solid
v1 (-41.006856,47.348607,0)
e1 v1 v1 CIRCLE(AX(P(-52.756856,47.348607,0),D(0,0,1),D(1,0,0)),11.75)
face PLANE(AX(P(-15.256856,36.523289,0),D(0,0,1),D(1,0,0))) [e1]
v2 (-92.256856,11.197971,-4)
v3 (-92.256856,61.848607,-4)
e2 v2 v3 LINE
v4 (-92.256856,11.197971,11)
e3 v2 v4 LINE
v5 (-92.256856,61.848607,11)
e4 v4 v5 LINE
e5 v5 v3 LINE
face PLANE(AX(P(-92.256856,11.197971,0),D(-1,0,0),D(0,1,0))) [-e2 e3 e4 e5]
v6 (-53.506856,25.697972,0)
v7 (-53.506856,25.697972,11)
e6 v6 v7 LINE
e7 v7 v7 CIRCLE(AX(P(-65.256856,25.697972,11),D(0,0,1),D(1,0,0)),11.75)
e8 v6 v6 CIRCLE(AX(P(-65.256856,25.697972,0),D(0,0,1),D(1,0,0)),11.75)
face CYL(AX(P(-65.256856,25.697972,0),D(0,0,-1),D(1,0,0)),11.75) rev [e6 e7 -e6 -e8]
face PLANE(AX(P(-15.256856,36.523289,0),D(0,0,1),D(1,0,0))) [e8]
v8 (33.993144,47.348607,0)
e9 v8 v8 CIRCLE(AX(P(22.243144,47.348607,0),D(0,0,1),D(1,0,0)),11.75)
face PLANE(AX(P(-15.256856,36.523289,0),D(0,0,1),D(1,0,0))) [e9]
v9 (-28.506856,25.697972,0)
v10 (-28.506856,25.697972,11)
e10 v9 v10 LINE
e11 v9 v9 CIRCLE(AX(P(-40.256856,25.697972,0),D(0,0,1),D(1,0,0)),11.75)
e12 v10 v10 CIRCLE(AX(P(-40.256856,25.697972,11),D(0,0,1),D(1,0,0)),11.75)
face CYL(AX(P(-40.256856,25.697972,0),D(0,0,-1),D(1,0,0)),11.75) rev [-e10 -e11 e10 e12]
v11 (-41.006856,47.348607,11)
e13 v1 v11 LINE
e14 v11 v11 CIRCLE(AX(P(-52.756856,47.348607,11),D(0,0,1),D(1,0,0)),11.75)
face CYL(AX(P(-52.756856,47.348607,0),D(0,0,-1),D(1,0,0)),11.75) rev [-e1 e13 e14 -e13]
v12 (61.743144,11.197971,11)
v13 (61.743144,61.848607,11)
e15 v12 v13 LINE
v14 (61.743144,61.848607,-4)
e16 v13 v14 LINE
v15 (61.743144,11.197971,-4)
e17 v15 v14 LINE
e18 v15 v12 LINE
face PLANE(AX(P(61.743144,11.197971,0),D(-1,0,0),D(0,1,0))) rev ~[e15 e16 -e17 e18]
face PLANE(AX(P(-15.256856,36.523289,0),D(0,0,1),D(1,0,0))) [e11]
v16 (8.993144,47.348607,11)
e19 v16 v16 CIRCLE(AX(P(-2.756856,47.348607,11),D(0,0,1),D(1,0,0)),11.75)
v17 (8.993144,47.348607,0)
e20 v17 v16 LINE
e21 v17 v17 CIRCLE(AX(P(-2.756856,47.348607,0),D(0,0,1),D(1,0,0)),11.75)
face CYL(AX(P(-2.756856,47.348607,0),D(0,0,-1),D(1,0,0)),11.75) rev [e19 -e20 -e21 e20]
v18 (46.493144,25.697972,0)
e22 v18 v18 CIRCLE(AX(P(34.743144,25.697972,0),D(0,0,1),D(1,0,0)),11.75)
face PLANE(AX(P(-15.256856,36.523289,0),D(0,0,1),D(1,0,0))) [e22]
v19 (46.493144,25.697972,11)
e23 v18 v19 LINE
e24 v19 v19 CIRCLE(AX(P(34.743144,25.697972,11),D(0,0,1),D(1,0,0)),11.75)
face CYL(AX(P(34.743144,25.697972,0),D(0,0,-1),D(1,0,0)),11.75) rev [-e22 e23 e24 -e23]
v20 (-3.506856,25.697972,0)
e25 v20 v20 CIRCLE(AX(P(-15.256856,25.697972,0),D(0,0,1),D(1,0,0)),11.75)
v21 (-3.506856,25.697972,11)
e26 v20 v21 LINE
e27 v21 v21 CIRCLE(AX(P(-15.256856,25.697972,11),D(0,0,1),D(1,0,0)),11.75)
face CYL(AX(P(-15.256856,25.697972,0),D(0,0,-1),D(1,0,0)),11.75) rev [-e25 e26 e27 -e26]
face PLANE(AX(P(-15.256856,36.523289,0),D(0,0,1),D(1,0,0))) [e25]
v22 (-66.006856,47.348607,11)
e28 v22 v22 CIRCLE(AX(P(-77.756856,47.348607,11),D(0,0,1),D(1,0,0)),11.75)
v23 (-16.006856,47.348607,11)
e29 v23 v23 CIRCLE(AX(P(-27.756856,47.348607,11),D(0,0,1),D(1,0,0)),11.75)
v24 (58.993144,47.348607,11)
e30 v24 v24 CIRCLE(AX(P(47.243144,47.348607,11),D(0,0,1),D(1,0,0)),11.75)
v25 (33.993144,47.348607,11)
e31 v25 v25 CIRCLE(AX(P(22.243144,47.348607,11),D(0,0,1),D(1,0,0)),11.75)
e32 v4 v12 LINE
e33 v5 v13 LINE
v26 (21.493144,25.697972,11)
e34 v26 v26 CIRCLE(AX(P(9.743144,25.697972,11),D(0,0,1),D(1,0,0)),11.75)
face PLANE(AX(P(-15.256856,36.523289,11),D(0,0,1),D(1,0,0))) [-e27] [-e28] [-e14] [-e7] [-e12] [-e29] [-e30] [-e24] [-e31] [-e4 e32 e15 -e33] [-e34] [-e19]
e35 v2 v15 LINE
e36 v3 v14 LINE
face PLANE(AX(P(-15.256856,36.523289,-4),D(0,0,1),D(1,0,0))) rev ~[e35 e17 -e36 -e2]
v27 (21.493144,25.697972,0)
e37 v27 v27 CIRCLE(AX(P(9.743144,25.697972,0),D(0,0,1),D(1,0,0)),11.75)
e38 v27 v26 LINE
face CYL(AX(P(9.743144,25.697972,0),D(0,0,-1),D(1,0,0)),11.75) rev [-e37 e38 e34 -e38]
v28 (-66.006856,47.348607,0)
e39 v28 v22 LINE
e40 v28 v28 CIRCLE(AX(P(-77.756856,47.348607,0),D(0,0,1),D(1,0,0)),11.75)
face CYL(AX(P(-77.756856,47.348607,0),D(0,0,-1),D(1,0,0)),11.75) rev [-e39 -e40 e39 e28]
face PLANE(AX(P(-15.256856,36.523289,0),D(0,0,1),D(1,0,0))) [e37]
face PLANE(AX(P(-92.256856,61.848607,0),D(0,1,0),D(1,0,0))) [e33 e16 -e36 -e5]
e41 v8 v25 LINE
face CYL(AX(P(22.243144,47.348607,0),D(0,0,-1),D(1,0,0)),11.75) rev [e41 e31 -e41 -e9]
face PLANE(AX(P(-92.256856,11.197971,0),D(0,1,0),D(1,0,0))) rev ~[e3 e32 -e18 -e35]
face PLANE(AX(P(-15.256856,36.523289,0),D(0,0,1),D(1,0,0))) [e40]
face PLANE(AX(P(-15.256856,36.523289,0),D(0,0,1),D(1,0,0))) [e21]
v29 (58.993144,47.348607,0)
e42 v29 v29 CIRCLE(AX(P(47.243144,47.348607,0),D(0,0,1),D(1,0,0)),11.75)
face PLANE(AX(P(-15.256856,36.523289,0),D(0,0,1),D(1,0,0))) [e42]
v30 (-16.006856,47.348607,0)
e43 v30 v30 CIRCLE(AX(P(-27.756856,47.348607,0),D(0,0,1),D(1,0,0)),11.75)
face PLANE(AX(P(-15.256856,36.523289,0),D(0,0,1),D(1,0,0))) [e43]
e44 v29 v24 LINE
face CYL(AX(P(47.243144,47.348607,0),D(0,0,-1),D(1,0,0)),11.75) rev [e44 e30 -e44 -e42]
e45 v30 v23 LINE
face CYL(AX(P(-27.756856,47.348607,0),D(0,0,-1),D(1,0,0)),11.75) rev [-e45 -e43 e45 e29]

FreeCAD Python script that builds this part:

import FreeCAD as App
import Part
import Sketcher
from FreeCAD import Vector
Q = App.Units.Quantity

doc = App.newDocument("Part")
body = doc.addObject("PartDesign::Body", "Body")

# Sketch on XY plane
sketch1 = doc.addObject("Sketcher::SketchObject", "Sketch")
body.addObject(sketch1)
sketch1.AttachmentSupport = (doc.XY_Plane, [""])
sketch1.MapMode = "FlatFace"
sketch1.addGeometry([
    Part.LineSegment(Vector(-92, 62, 0), Vector(-92, 11, 0)),
    Part.LineSegment(Vector(-92, 11, 0), Vector(62, 11, 0)),
    Part.LineSegment(Vector(62, 11, 0), Vector(62, 62, 0)),
    Part.LineSegment(Vector(62, 62, 0), Vector(-92, 62, 0)),
], False)
sketch1.addConstraint([
    Sketcher.Constraint("Coincident", 0, 2, 1, 1),
    Sketcher.Constraint("Coincident", 1, 2, 2, 1),
    Sketcher.Constraint("Coincident", 2, 2, 3, 1),
    Sketcher.Constraint("Coincident", 3, 2, 0, 1),
    Sketcher.Constraint("Vertical", 0),
    Sketcher.Constraint("Horizontal", 1),
    Sketcher.Constraint("Vertical", 2),
    Sketcher.Constraint("Horizontal", 3),
    Sketcher.Constraint("DistanceX", 1, 1, 1, 2, Q("154 mm")),
    Sketcher.Constraint("DistanceY", 0, 2, 0, 1, Q("50.650635 mm")),
    Sketcher.Constraint("DistanceY", -1, 1, 0, 2, Q("11.197971 mm")),
    Sketcher.Constraint("DistanceX", 0, 2, -1, 1, Q("92.256856 mm")),
])
pad1 = doc.addObject("PartDesign::Pad", "Pad")
body.addObject(pad1)
pad1.Profile = sketch1
pad1.Length = 4
pad1.Reversed = True

# Sketch on XY plane
sketch2 = doc.addObject("Sketcher::SketchObject", "Sketch001")
body.addObject(sketch2)
sketch2.AttachmentSupport = (doc.XY_Plane, [""])
sketch2.MapMode = "FlatFace"
sketch2.addGeometry([
    Part.LineSegment(Vector(-92, 62, 0), Vector(-92, 11, 0)),  # 0
    Part.LineSegment(Vector(-92, 11, 0), Vector(62, 11, 0)),  # 1
    Part.LineSegment(Vector(62, 11, 0), Vector(62, 62, 0)),  # 2
    Part.LineSegment(Vector(62, 62, 0), Vector(-92, 62, 0)),  # 3
    Part.Circle(Vector(-65, 26, 0), Vector(0, 0, 1), 12),  # 4
    Part.Circle(Vector(-40, 26, 0), Vector(0, 0, 1), 12),  # 5
    Part.Circle(Vector(-15, 26, 0), Vector(0, 0, 1), 12),  # 6
    Part.Circle(Vector(10, 26, 0), Vector(0, 0, 1), 12),  # 7
    Part.Circle(Vector(35, 26, 0), Vector(0, 0, 1), 12),  # 8
    Part.Circle(Vector(-78, 47, 0), Vector(0, 0, 1), 12),  # 9
    Part.Circle(Vector(-53, 47, 0), Vector(0, 0, 1), 12),  # 10
    Part.Circle(Vector(-28, 47, 0), Vector(0, 0, 1), 12),  # 11
    Part.Circle(Vector(-3, 47, 0), Vector(0, 0, 1), 12),  # 12
    Part.Circle(Vector(22, 47, 0), Vector(0, 0, 1), 12),  # 13
    Part.Circle(Vector(47, 47, 0), Vector(0, 0, 1), 12),  # 14
], False)
sketch2.addConstraint([
    Sketcher.Constraint("Coincident", 0, 2, 1, 1),
    Sketcher.Constraint("Coincident", 1, 2, 2, 1),
    Sketcher.Constraint("Coincident", 2, 2, 3, 1),
    Sketcher.Constraint("Coincident", 3, 2, 0, 1),
    Sketcher.Constraint("Vertical", 0),
    Sketcher.Constraint("Horizontal", 1),
    Sketcher.Constraint("Vertical", 2),
    Sketcher.Constraint("Horizontal", 3),
    Sketcher.Constraint("Equal", 4, 5),
    Sketcher.Constraint("Equal", 5, 6),
    Sketcher.Constraint("Equal", 6, 7),
    Sketcher.Constraint("Equal", 7, 8),
    Sketcher.Constraint("Equal", 8, 9),
    Sketcher.Constraint("Equal", 9, 10),
    Sketcher.Constraint("Equal", 10, 11),
    Sketcher.Constraint("Equal", 11, 12),
    Sketcher.Constraint("Equal", 12, 13),
    Sketcher.Constraint("Equal", 13, 14),
    Sketcher.Constraint("Horizontal", 4, 3, 5, 3),
    Sketcher.Constraint("Horizontal", 5, 3, 6, 3),
    Sketcher.Constraint("Horizontal", 6, 3, 7, 3),
    Sketcher.Constraint("Horizontal", 7, 3, 8, 3),
    Sketcher.Constraint("Horizontal", 9, 3, 10, 3),
    Sketcher.Constraint("Horizontal", 10, 3, 11, 3),
    Sketcher.Constraint("Horizontal", 11, 3, 12, 3),
    Sketcher.Constraint("Horizontal", 12, 3, 13, 3),
    Sketcher.Constraint("Horizontal", 13, 3, 14, 3),
    Sketcher.Constraint("Diameter", 4, Q("23.5 mm")),
    Sketcher.Constraint("DistanceX", 1, 1, 1, 2, Q("154 mm")),
    Sketcher.Constraint("DistanceX", 4, 3, 5, 3, Q("25 mm")),
    Sketcher.Constraint("DistanceX", 5, 3, 6, 3, Q("25 mm")),
    Sketcher.Constraint("DistanceX", 6, 3, 7, 3, Q("25 mm")),
    Sketcher.Constraint("DistanceX", 7, 3, 8, 3, Q("25 mm")),
    Sketcher.Constraint("DistanceX", 9, 3, 10, 3, Q("25 mm")),
    Sketcher.Constraint("DistanceX", 10, 3, 11, 3, Q("25 mm")),
    Sketcher.Constraint("DistanceX", 11, 3, 12, 3, Q("25 mm")),
    Sketcher.Constraint("DistanceX", 12, 3, 13, 3, Q("25 mm")),
    Sketcher.Constraint("DistanceX", 13, 3, 14, 3, Q("25 mm")),
    Sketcher.Constraint("DistanceX", 0, 2, 4, 3, Q("27 mm")),
    Sketcher.Constraint("DistanceX", 9, 3, 4, 3, Q("12.5 mm")),
    Sketcher.Constraint("DistanceY", 0, 2, 4, 3, Q("14.500001 mm")),
    Sketcher.Constraint("DistanceY", 14, 3, 2, 2, Q("14.5 mm")),
    Sketcher.Constraint("DistanceY", 0, 2, 0, 1, Q("50.650635 mm")),
    Sketcher.Constraint("DistanceY", -1, 1, 4, 3, Q("25.697972 mm")),
    Sketcher.Constraint("DistanceX", 4, 3, -1, 1, Q("65.256856 mm")),
])
pad2 = doc.addObject("PartDesign::Pad", "Pad001")
body.addObject(pad2)
pad2.Profile = sketch2
pad2.Length = 11

doc.recompute()
